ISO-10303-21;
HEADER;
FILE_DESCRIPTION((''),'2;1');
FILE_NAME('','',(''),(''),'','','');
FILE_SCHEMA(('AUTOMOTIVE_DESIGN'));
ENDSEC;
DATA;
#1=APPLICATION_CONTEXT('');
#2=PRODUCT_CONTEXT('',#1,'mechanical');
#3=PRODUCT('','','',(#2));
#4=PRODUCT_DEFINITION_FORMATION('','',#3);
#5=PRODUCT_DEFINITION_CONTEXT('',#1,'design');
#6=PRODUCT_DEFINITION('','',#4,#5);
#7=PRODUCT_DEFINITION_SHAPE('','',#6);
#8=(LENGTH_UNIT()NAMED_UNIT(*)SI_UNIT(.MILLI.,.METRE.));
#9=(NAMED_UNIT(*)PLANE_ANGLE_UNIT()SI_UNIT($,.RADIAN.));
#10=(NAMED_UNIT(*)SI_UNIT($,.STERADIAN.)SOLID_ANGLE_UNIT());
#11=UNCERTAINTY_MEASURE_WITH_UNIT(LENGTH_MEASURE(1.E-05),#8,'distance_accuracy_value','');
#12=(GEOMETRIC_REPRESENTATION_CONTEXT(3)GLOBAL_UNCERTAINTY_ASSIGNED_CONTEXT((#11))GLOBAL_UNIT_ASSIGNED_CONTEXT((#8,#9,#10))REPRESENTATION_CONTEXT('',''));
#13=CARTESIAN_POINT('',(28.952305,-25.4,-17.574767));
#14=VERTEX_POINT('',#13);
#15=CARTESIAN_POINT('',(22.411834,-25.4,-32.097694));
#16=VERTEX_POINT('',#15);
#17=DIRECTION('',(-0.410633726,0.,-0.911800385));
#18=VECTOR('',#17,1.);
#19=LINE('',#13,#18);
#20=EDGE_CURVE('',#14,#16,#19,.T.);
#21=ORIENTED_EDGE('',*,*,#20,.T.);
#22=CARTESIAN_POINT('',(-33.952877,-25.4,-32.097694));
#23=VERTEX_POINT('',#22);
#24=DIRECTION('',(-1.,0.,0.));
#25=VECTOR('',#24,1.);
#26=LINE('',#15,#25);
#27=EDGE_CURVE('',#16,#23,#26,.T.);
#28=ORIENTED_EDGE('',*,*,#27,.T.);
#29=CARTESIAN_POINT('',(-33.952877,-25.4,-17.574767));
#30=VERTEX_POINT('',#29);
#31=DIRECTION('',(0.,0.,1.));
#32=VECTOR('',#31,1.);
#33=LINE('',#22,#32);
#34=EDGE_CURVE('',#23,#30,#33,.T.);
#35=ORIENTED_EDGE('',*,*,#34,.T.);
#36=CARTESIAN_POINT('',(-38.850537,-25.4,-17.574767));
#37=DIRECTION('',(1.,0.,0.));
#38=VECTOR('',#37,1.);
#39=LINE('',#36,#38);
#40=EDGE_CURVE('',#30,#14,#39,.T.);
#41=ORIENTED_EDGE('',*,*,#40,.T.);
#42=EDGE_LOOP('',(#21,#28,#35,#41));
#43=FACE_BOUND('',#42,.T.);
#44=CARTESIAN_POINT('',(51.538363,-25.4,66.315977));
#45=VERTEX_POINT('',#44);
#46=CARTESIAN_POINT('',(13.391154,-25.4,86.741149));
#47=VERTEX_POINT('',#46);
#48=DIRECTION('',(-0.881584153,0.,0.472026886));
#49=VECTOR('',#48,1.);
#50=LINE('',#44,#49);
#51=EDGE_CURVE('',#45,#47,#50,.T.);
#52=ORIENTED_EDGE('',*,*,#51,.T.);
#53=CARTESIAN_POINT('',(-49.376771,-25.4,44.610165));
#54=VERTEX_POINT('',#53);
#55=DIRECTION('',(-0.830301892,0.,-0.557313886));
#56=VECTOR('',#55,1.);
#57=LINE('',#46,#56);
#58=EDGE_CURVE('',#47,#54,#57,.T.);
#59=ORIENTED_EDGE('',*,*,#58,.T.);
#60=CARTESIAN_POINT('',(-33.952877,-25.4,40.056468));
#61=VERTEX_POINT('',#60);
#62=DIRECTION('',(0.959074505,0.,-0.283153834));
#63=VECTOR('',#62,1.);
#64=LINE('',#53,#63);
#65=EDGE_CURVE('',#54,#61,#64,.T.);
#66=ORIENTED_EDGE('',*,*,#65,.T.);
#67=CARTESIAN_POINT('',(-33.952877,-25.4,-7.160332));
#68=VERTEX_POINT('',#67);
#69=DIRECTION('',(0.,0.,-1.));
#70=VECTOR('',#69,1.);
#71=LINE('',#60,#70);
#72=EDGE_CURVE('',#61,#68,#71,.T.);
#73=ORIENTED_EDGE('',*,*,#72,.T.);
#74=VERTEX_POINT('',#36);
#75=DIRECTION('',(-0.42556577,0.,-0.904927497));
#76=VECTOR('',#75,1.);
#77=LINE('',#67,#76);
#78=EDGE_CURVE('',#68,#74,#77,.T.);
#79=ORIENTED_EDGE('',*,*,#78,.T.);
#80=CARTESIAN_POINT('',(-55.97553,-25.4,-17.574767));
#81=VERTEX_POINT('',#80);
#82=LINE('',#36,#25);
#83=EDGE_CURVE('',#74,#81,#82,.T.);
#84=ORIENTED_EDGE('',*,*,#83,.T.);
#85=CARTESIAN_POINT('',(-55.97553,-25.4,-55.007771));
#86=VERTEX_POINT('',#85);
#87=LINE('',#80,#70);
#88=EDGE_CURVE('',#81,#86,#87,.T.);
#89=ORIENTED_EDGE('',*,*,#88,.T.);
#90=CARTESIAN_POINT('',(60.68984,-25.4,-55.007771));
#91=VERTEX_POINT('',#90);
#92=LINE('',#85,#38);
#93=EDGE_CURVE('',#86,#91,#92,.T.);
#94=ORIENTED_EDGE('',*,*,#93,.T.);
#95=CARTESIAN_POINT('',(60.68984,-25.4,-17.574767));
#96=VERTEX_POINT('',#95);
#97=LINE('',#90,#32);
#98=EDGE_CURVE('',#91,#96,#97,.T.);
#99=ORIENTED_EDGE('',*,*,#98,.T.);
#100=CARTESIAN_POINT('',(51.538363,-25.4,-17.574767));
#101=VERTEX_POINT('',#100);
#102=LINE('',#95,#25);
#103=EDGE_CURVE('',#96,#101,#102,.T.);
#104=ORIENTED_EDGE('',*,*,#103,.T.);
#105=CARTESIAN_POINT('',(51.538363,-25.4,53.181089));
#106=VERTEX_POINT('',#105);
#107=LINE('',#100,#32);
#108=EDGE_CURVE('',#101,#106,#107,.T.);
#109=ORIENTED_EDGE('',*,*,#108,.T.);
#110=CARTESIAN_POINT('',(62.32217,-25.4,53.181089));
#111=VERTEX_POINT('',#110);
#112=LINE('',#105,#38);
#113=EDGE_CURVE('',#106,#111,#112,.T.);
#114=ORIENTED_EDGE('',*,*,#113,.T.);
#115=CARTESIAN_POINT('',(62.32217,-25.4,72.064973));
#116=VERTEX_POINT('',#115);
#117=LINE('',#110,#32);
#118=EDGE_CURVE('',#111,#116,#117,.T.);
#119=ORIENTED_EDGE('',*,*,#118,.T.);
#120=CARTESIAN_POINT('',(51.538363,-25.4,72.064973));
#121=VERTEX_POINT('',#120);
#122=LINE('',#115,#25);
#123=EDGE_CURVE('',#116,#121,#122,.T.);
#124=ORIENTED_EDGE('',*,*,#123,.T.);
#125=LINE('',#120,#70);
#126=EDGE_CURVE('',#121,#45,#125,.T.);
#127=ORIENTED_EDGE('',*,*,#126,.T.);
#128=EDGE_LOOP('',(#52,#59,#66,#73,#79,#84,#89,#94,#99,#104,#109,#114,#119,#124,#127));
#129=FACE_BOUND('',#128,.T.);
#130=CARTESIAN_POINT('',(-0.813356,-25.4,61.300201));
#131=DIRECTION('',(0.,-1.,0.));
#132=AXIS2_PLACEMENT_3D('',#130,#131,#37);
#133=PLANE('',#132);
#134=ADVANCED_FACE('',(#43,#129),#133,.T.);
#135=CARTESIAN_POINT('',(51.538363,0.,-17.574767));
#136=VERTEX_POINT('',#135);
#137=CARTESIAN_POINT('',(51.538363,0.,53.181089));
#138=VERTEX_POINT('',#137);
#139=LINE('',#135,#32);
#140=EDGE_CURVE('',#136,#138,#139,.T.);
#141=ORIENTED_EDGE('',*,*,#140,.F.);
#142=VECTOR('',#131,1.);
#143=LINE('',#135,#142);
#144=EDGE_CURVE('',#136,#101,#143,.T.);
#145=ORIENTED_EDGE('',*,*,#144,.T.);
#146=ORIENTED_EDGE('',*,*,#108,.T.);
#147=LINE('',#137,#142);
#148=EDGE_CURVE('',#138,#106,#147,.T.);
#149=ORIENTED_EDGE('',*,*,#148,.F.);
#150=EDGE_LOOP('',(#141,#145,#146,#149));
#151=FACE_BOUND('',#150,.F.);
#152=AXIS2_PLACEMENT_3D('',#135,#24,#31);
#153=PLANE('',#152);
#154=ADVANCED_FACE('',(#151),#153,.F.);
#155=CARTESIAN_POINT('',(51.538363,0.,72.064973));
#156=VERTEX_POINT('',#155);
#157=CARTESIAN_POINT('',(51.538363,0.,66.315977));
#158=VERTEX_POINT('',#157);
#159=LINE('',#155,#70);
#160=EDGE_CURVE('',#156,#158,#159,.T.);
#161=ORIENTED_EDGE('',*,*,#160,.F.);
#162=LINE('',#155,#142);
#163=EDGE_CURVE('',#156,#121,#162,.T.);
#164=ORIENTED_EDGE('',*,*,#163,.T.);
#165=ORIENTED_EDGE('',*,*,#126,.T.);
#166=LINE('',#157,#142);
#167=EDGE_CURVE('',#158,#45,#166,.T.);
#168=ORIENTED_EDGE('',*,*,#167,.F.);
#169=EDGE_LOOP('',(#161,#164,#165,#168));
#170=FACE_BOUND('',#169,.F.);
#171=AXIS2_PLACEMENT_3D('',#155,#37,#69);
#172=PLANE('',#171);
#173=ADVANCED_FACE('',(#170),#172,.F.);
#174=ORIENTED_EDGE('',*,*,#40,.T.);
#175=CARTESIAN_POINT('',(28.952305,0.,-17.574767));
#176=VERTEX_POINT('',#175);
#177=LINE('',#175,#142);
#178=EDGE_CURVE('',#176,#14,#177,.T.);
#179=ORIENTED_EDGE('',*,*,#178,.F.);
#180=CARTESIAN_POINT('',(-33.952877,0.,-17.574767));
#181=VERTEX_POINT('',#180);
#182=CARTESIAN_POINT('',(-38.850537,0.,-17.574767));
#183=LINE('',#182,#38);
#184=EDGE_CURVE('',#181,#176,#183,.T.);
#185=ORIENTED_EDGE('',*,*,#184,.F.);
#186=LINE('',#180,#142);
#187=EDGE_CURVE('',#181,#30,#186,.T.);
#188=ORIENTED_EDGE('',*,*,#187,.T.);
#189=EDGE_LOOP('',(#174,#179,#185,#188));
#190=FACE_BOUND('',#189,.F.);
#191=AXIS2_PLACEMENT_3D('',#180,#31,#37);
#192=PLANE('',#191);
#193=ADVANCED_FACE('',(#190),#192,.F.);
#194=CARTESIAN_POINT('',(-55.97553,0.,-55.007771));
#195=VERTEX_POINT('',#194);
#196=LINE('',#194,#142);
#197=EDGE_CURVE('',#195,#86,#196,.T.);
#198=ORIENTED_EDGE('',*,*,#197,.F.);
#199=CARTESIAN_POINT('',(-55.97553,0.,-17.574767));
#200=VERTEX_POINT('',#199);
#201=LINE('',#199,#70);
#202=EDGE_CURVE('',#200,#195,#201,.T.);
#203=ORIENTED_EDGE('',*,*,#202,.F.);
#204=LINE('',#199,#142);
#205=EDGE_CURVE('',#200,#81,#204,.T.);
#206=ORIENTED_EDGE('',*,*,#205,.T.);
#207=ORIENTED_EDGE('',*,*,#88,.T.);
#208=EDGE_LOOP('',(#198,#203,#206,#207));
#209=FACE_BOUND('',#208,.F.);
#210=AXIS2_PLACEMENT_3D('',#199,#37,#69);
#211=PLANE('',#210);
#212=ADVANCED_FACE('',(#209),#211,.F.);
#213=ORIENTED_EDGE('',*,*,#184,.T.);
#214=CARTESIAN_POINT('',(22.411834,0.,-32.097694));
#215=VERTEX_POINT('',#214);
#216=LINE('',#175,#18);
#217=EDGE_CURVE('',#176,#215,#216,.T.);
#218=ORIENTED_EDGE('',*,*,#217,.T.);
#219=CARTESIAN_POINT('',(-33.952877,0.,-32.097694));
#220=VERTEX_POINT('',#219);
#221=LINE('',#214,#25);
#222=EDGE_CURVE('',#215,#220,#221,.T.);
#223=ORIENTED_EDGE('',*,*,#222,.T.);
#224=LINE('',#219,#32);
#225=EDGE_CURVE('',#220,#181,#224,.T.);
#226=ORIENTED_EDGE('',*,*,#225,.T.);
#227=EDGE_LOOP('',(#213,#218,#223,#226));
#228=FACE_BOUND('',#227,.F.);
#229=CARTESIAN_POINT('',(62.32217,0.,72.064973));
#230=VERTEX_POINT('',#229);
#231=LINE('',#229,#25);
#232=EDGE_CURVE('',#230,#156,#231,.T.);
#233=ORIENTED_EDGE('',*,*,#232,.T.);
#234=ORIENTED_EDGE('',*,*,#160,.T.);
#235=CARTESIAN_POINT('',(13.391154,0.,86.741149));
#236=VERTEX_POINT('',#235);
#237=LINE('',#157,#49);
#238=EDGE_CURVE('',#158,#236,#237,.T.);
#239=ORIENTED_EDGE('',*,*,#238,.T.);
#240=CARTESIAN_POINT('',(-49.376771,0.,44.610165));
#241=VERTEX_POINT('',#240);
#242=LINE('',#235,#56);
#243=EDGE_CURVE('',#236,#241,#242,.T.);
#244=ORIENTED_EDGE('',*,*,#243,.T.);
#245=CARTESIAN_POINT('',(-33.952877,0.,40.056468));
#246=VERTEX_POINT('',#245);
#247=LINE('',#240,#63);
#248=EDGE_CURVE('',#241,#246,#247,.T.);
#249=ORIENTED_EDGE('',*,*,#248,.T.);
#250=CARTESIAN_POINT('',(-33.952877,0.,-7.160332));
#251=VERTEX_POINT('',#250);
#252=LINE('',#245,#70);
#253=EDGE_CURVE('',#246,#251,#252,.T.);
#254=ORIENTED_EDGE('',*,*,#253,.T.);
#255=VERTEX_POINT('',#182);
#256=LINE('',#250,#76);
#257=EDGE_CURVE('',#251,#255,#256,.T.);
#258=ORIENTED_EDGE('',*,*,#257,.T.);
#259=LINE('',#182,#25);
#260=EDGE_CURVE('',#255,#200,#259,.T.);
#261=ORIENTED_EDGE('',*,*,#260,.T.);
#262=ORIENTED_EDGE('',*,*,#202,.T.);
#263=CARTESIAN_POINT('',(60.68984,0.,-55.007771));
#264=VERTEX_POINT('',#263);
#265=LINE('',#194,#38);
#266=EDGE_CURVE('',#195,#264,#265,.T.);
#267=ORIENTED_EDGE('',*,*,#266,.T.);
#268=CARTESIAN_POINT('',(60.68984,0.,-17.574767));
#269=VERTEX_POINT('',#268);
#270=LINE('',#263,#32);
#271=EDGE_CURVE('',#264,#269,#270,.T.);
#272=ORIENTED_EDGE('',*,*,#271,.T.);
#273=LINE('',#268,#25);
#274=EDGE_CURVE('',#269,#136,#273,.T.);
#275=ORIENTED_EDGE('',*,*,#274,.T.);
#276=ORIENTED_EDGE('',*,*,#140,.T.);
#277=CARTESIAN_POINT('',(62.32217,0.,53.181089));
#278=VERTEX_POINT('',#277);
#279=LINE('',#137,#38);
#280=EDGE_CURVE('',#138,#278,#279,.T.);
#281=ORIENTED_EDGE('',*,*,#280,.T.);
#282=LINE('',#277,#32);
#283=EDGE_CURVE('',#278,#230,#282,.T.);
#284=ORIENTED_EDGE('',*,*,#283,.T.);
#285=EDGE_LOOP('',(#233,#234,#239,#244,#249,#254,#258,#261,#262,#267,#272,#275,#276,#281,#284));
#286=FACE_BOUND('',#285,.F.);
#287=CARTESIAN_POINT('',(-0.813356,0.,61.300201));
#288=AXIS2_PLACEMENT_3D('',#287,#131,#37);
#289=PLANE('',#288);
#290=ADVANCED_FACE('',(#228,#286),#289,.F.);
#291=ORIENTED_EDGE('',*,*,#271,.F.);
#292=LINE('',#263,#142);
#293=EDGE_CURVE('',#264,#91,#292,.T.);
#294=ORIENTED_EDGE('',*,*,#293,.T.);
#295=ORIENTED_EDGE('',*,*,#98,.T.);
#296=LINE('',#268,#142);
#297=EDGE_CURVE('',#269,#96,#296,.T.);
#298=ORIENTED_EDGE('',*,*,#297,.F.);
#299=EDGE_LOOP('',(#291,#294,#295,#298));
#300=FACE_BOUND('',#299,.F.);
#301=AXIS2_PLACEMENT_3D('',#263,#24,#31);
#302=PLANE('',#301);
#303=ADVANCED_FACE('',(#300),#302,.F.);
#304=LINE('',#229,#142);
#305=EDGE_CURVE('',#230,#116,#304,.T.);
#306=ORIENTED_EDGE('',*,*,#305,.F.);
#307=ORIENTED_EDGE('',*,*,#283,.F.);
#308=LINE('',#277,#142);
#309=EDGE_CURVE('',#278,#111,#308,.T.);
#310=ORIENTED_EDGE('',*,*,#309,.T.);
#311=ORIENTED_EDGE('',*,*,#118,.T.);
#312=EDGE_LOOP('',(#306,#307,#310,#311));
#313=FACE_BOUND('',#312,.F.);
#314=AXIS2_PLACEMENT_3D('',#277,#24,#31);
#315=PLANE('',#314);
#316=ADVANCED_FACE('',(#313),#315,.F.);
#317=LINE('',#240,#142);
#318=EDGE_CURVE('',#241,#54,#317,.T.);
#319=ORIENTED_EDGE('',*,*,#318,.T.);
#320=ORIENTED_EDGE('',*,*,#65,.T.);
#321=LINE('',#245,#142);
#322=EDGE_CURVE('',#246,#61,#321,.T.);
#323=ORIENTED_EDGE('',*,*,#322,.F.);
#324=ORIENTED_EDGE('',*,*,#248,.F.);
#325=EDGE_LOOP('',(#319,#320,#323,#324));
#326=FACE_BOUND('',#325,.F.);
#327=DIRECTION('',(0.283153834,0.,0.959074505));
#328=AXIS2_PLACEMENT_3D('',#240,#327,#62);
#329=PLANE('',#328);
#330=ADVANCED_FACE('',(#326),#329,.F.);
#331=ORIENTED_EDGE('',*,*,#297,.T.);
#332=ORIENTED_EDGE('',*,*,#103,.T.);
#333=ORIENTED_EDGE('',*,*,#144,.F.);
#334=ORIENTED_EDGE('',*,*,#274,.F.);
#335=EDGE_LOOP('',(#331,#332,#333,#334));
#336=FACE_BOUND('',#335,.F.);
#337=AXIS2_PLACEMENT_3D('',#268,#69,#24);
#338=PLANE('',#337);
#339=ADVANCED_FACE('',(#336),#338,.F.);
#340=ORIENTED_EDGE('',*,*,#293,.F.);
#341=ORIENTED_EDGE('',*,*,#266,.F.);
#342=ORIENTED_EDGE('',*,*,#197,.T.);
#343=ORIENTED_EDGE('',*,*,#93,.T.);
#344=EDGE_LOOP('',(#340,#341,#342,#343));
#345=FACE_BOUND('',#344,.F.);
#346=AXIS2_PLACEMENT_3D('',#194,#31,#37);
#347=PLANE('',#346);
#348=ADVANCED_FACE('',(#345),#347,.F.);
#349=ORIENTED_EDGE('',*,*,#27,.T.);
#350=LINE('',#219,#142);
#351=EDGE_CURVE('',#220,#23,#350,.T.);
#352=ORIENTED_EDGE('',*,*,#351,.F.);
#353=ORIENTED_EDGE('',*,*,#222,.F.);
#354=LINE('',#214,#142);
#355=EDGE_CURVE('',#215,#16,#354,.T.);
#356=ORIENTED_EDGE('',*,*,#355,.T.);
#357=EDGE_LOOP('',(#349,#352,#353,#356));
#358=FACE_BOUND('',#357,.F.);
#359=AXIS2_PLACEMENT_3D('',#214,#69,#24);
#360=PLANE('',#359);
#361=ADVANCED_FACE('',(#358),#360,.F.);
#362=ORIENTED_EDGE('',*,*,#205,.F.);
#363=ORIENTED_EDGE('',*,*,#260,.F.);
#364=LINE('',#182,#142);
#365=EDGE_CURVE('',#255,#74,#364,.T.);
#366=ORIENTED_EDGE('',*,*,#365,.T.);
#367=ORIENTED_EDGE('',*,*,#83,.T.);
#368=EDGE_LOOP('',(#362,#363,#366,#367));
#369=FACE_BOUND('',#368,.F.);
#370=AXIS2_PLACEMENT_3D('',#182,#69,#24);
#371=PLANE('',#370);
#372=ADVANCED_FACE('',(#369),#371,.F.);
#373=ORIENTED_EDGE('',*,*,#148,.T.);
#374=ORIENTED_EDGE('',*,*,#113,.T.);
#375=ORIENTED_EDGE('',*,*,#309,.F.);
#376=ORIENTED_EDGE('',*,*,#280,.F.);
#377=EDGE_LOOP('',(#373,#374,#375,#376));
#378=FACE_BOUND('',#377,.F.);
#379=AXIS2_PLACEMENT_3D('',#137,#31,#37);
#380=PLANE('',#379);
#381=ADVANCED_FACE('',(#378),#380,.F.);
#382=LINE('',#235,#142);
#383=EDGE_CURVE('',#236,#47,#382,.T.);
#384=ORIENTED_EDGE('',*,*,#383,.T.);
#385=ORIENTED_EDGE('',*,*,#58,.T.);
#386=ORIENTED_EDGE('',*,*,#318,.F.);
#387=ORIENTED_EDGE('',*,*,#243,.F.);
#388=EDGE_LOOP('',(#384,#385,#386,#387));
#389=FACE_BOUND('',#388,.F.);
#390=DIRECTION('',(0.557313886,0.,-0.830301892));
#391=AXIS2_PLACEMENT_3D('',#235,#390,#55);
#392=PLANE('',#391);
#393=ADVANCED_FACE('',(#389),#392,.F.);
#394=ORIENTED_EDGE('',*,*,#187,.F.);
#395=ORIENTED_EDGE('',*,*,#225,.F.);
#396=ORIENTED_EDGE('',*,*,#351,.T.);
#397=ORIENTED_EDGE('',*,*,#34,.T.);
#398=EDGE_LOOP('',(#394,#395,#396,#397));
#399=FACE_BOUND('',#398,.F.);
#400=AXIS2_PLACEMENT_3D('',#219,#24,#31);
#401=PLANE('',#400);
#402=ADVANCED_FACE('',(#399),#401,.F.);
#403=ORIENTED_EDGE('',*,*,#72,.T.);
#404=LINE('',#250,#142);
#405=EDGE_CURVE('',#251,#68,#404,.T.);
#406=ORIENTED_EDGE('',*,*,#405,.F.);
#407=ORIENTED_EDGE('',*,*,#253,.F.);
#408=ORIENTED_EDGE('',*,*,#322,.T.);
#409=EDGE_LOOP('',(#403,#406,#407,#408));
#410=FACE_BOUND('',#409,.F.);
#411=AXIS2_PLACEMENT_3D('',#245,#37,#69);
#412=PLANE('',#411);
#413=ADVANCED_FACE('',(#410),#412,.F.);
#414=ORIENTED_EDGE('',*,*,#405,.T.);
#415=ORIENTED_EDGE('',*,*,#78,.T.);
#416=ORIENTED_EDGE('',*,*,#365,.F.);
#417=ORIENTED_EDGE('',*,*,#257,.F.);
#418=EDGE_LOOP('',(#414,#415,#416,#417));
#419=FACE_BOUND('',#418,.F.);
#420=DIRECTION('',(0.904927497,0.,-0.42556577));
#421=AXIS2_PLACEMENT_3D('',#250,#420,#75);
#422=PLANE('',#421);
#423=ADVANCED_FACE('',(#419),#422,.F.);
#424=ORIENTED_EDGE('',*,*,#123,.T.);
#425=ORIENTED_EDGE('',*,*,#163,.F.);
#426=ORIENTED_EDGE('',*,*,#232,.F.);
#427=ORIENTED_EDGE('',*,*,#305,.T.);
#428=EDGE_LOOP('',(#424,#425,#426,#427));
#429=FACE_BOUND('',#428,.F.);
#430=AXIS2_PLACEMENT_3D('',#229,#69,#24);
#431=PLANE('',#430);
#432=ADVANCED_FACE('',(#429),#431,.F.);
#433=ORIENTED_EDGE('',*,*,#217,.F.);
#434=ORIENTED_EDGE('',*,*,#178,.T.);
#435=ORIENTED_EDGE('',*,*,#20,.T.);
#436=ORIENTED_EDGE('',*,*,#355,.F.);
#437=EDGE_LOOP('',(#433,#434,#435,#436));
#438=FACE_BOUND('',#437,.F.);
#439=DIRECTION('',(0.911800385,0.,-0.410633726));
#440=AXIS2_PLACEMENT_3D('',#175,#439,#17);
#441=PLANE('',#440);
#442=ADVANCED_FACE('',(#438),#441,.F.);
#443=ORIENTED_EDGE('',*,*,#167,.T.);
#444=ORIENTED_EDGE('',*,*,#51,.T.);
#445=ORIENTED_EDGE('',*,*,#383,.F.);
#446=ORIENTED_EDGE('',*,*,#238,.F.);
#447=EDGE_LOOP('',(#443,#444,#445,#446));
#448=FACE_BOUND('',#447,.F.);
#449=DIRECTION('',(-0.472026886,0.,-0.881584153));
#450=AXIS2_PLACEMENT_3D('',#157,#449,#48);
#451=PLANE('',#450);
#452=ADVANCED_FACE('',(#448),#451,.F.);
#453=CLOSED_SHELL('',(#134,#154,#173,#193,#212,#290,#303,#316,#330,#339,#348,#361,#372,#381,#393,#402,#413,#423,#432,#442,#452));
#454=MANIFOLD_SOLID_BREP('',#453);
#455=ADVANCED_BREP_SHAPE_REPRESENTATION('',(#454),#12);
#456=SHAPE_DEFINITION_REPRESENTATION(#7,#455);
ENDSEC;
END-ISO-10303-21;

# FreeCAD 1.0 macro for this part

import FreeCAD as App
import Part
import Sketcher
Q = App.Units.Quantity


def add_polygon(sketch, points):
    """Adds a closed chain of lines whose ends are joined by coincident constraints."""
    first, n = sketch.GeometryCount, len(points)
    for a, b in zip(points, points[1:] + points[:1]):
        sketch.addGeometry(Part.LineSegment(App.Vector(*a, 0), App.Vector(*b, 0)), False)
    for i in range(n):
        sketch.addConstraint(Sketcher.Constraint("Coincident", first + i, 2, first + (i + 1) % n, 1))

doc = App.newDocument("Part")
body = doc.addObject("PartDesign::Body", "Body")

sketch1 = body.newObject("Sketcher::SketchObject", "Sketch")
sketch1.AttachmentSupport = (doc.getObject("XZ_Plane"), [""])
sketch1.MapMode = "FlatFace"
add_polygon(sketch1, [(-33.952877, -7.160332), (-38.850537, -17.574767), (-55.97553, -17.574767), (-55.97553, -55.007771), (60.68984, -55.007771), (60.68984, -17.574767), (51.538363, -17.574767), (51.538363, 53.181089), (62.32217, 53.181089), (62.32217, 72.064973), (51.538363, 72.064973), (51.538363, 66.315977), (13.391154, 86.741149), (-49.376771, 44.610165), (-33.952877, 40.056468)])
add_polygon(sketch1, [(28.952305, -17.574767), (22.411834, -32.097694), (-33.952877, -32.097694), (-33.952877, -17.574767)])
sketch1.addConstraint(Sketcher.Constraint("Horizontal", 1))
sketch1.addConstraint(Sketcher.Constraint("Vertical", 2))
sketch1.addConstraint(Sketcher.Constraint("Horizontal", 3))
sketch1.addConstraint(Sketcher.Constraint("Vertical", 4))
sketch1.addConstraint(Sketcher.Constraint("Horizontal", 5))
sketch1.addConstraint(Sketcher.Constraint("Vertical", 6))
sketch1.addConstraint(Sketcher.Constraint("Horizontal", 7))
sketch1.addConstraint(Sketcher.Constraint("Vertical", 8))
sketch1.addConstraint(Sketcher.Constraint("Horizontal", 9))
sketch1.addConstraint(Sketcher.Constraint("Vertical", 10))
sketch1.addConstraint(Sketcher.Constraint("Vertical", 14))
sketch1.addConstraint(Sketcher.Constraint("Horizontal", 16))
sketch1.addConstraint(Sketcher.Constraint("Vertical", 17))
sketch1.addConstraint(Sketcher.Constraint("Horizontal", 18))
sketch1.addConstraint(Sketcher.Constraint("Horizontal", 1, 2, 4, 2))
sketch1.addConstraint(Sketcher.Constraint("Horizontal", 5, 2, 17, 2))
sketch1.addConstraint(Sketcher.Constraint("Vertical", 6, 2, 9, 2))
sketch1.addConstraint(Sketcher.Constraint("Vertical", 14, 2, 16, 2))
sketch1.addConstraint(Sketcher.Constraint("DistanceY", 14, 2, 14, 1, Q("47.2168 mm")))
sketch1.addConstraint(Sketcher.Constraint("DistanceY", 12, 2, 11, 2, Q("1.6587002 in")))
sketch1.addConstraint(Sketcher.Constraint("DistanceX", 3, 1, 3, 2, Q("116.665371 mm")))
sketch1.addConstraint(Sketcher.Constraint("DistanceX", 16, 2, 16, 1, Q("56.364711 mm")))
sketch1.addConstraint(Sketcher.Constraint("DistanceX", 18, 1, 18, 2, Q("62.905182 mm")))
sketch1.addConstraint(Sketcher.Constraint("DistanceX", 0, 2, 5, 2, Q("90.3889 mm")))
sketch1.addConstraint(Sketcher.Constraint("Distance", 12, Q("75.596509 mm")))
sketch1.addConstraint(Sketcher.Constraint("Distance", 13, Q("16.08206 mm")))
sketch1.addConstraint(Sketcher.Constraint("Distance", 15, Q("15.927748 mm")))
sketch1.addConstraint(Sketcher.Constraint("DistanceX", 1, 2, 1, 1, Q("17.124994 mm")))
sketch1.addConstraint(Sketcher.Constraint("DistanceX", 7, 1, 7, 2, Q("10.783806 mm")))
sketch1.addConstraint(Sketcher.Constraint("DistanceY", 2, 2, 2, 1, Q("37.433004 mm")))
sketch1.addConstraint(Sketcher.Constraint("DistanceY", 6, 1, 6, 2, Q("70.755856 mm")))
sketch1.addConstraint(Sketcher.Constraint("DistanceY", 8, 1, 8, 2, Q("18.883884 mm")))
sketch1.addConstraint(Sketcher.Constraint("DistanceY", 10, 2, 10, 1, Q("5.748996 mm")))
sketch1.addConstraint(Sketcher.Constraint("DistanceX", 1, 2, -1, 1, Q("55.97553 mm")))
sketch1.addConstraint(Sketcher.Constraint("DistanceY", 2, 2, -1, 1, Q("55.007771 mm")))
sketch1.addConstraint(Sketcher.Constraint("DistanceY", -1, 1, 11, 2, Q("86.741149 mm")))
sketch1.addConstraint(Sketcher.Constraint("DistanceX", 12, 2, -1, 1, Q("49.376771 mm")))
sketch1.addConstraint(Sketcher.Constraint("DistanceY", -1, 1, 13, 2, Q("40.056468 mm")))
pad1 = body.newObject("PartDesign::Pad", "Pad")
pad1.Profile = sketch1
pad1.Length = Q("1 in")

doc.recompute()
